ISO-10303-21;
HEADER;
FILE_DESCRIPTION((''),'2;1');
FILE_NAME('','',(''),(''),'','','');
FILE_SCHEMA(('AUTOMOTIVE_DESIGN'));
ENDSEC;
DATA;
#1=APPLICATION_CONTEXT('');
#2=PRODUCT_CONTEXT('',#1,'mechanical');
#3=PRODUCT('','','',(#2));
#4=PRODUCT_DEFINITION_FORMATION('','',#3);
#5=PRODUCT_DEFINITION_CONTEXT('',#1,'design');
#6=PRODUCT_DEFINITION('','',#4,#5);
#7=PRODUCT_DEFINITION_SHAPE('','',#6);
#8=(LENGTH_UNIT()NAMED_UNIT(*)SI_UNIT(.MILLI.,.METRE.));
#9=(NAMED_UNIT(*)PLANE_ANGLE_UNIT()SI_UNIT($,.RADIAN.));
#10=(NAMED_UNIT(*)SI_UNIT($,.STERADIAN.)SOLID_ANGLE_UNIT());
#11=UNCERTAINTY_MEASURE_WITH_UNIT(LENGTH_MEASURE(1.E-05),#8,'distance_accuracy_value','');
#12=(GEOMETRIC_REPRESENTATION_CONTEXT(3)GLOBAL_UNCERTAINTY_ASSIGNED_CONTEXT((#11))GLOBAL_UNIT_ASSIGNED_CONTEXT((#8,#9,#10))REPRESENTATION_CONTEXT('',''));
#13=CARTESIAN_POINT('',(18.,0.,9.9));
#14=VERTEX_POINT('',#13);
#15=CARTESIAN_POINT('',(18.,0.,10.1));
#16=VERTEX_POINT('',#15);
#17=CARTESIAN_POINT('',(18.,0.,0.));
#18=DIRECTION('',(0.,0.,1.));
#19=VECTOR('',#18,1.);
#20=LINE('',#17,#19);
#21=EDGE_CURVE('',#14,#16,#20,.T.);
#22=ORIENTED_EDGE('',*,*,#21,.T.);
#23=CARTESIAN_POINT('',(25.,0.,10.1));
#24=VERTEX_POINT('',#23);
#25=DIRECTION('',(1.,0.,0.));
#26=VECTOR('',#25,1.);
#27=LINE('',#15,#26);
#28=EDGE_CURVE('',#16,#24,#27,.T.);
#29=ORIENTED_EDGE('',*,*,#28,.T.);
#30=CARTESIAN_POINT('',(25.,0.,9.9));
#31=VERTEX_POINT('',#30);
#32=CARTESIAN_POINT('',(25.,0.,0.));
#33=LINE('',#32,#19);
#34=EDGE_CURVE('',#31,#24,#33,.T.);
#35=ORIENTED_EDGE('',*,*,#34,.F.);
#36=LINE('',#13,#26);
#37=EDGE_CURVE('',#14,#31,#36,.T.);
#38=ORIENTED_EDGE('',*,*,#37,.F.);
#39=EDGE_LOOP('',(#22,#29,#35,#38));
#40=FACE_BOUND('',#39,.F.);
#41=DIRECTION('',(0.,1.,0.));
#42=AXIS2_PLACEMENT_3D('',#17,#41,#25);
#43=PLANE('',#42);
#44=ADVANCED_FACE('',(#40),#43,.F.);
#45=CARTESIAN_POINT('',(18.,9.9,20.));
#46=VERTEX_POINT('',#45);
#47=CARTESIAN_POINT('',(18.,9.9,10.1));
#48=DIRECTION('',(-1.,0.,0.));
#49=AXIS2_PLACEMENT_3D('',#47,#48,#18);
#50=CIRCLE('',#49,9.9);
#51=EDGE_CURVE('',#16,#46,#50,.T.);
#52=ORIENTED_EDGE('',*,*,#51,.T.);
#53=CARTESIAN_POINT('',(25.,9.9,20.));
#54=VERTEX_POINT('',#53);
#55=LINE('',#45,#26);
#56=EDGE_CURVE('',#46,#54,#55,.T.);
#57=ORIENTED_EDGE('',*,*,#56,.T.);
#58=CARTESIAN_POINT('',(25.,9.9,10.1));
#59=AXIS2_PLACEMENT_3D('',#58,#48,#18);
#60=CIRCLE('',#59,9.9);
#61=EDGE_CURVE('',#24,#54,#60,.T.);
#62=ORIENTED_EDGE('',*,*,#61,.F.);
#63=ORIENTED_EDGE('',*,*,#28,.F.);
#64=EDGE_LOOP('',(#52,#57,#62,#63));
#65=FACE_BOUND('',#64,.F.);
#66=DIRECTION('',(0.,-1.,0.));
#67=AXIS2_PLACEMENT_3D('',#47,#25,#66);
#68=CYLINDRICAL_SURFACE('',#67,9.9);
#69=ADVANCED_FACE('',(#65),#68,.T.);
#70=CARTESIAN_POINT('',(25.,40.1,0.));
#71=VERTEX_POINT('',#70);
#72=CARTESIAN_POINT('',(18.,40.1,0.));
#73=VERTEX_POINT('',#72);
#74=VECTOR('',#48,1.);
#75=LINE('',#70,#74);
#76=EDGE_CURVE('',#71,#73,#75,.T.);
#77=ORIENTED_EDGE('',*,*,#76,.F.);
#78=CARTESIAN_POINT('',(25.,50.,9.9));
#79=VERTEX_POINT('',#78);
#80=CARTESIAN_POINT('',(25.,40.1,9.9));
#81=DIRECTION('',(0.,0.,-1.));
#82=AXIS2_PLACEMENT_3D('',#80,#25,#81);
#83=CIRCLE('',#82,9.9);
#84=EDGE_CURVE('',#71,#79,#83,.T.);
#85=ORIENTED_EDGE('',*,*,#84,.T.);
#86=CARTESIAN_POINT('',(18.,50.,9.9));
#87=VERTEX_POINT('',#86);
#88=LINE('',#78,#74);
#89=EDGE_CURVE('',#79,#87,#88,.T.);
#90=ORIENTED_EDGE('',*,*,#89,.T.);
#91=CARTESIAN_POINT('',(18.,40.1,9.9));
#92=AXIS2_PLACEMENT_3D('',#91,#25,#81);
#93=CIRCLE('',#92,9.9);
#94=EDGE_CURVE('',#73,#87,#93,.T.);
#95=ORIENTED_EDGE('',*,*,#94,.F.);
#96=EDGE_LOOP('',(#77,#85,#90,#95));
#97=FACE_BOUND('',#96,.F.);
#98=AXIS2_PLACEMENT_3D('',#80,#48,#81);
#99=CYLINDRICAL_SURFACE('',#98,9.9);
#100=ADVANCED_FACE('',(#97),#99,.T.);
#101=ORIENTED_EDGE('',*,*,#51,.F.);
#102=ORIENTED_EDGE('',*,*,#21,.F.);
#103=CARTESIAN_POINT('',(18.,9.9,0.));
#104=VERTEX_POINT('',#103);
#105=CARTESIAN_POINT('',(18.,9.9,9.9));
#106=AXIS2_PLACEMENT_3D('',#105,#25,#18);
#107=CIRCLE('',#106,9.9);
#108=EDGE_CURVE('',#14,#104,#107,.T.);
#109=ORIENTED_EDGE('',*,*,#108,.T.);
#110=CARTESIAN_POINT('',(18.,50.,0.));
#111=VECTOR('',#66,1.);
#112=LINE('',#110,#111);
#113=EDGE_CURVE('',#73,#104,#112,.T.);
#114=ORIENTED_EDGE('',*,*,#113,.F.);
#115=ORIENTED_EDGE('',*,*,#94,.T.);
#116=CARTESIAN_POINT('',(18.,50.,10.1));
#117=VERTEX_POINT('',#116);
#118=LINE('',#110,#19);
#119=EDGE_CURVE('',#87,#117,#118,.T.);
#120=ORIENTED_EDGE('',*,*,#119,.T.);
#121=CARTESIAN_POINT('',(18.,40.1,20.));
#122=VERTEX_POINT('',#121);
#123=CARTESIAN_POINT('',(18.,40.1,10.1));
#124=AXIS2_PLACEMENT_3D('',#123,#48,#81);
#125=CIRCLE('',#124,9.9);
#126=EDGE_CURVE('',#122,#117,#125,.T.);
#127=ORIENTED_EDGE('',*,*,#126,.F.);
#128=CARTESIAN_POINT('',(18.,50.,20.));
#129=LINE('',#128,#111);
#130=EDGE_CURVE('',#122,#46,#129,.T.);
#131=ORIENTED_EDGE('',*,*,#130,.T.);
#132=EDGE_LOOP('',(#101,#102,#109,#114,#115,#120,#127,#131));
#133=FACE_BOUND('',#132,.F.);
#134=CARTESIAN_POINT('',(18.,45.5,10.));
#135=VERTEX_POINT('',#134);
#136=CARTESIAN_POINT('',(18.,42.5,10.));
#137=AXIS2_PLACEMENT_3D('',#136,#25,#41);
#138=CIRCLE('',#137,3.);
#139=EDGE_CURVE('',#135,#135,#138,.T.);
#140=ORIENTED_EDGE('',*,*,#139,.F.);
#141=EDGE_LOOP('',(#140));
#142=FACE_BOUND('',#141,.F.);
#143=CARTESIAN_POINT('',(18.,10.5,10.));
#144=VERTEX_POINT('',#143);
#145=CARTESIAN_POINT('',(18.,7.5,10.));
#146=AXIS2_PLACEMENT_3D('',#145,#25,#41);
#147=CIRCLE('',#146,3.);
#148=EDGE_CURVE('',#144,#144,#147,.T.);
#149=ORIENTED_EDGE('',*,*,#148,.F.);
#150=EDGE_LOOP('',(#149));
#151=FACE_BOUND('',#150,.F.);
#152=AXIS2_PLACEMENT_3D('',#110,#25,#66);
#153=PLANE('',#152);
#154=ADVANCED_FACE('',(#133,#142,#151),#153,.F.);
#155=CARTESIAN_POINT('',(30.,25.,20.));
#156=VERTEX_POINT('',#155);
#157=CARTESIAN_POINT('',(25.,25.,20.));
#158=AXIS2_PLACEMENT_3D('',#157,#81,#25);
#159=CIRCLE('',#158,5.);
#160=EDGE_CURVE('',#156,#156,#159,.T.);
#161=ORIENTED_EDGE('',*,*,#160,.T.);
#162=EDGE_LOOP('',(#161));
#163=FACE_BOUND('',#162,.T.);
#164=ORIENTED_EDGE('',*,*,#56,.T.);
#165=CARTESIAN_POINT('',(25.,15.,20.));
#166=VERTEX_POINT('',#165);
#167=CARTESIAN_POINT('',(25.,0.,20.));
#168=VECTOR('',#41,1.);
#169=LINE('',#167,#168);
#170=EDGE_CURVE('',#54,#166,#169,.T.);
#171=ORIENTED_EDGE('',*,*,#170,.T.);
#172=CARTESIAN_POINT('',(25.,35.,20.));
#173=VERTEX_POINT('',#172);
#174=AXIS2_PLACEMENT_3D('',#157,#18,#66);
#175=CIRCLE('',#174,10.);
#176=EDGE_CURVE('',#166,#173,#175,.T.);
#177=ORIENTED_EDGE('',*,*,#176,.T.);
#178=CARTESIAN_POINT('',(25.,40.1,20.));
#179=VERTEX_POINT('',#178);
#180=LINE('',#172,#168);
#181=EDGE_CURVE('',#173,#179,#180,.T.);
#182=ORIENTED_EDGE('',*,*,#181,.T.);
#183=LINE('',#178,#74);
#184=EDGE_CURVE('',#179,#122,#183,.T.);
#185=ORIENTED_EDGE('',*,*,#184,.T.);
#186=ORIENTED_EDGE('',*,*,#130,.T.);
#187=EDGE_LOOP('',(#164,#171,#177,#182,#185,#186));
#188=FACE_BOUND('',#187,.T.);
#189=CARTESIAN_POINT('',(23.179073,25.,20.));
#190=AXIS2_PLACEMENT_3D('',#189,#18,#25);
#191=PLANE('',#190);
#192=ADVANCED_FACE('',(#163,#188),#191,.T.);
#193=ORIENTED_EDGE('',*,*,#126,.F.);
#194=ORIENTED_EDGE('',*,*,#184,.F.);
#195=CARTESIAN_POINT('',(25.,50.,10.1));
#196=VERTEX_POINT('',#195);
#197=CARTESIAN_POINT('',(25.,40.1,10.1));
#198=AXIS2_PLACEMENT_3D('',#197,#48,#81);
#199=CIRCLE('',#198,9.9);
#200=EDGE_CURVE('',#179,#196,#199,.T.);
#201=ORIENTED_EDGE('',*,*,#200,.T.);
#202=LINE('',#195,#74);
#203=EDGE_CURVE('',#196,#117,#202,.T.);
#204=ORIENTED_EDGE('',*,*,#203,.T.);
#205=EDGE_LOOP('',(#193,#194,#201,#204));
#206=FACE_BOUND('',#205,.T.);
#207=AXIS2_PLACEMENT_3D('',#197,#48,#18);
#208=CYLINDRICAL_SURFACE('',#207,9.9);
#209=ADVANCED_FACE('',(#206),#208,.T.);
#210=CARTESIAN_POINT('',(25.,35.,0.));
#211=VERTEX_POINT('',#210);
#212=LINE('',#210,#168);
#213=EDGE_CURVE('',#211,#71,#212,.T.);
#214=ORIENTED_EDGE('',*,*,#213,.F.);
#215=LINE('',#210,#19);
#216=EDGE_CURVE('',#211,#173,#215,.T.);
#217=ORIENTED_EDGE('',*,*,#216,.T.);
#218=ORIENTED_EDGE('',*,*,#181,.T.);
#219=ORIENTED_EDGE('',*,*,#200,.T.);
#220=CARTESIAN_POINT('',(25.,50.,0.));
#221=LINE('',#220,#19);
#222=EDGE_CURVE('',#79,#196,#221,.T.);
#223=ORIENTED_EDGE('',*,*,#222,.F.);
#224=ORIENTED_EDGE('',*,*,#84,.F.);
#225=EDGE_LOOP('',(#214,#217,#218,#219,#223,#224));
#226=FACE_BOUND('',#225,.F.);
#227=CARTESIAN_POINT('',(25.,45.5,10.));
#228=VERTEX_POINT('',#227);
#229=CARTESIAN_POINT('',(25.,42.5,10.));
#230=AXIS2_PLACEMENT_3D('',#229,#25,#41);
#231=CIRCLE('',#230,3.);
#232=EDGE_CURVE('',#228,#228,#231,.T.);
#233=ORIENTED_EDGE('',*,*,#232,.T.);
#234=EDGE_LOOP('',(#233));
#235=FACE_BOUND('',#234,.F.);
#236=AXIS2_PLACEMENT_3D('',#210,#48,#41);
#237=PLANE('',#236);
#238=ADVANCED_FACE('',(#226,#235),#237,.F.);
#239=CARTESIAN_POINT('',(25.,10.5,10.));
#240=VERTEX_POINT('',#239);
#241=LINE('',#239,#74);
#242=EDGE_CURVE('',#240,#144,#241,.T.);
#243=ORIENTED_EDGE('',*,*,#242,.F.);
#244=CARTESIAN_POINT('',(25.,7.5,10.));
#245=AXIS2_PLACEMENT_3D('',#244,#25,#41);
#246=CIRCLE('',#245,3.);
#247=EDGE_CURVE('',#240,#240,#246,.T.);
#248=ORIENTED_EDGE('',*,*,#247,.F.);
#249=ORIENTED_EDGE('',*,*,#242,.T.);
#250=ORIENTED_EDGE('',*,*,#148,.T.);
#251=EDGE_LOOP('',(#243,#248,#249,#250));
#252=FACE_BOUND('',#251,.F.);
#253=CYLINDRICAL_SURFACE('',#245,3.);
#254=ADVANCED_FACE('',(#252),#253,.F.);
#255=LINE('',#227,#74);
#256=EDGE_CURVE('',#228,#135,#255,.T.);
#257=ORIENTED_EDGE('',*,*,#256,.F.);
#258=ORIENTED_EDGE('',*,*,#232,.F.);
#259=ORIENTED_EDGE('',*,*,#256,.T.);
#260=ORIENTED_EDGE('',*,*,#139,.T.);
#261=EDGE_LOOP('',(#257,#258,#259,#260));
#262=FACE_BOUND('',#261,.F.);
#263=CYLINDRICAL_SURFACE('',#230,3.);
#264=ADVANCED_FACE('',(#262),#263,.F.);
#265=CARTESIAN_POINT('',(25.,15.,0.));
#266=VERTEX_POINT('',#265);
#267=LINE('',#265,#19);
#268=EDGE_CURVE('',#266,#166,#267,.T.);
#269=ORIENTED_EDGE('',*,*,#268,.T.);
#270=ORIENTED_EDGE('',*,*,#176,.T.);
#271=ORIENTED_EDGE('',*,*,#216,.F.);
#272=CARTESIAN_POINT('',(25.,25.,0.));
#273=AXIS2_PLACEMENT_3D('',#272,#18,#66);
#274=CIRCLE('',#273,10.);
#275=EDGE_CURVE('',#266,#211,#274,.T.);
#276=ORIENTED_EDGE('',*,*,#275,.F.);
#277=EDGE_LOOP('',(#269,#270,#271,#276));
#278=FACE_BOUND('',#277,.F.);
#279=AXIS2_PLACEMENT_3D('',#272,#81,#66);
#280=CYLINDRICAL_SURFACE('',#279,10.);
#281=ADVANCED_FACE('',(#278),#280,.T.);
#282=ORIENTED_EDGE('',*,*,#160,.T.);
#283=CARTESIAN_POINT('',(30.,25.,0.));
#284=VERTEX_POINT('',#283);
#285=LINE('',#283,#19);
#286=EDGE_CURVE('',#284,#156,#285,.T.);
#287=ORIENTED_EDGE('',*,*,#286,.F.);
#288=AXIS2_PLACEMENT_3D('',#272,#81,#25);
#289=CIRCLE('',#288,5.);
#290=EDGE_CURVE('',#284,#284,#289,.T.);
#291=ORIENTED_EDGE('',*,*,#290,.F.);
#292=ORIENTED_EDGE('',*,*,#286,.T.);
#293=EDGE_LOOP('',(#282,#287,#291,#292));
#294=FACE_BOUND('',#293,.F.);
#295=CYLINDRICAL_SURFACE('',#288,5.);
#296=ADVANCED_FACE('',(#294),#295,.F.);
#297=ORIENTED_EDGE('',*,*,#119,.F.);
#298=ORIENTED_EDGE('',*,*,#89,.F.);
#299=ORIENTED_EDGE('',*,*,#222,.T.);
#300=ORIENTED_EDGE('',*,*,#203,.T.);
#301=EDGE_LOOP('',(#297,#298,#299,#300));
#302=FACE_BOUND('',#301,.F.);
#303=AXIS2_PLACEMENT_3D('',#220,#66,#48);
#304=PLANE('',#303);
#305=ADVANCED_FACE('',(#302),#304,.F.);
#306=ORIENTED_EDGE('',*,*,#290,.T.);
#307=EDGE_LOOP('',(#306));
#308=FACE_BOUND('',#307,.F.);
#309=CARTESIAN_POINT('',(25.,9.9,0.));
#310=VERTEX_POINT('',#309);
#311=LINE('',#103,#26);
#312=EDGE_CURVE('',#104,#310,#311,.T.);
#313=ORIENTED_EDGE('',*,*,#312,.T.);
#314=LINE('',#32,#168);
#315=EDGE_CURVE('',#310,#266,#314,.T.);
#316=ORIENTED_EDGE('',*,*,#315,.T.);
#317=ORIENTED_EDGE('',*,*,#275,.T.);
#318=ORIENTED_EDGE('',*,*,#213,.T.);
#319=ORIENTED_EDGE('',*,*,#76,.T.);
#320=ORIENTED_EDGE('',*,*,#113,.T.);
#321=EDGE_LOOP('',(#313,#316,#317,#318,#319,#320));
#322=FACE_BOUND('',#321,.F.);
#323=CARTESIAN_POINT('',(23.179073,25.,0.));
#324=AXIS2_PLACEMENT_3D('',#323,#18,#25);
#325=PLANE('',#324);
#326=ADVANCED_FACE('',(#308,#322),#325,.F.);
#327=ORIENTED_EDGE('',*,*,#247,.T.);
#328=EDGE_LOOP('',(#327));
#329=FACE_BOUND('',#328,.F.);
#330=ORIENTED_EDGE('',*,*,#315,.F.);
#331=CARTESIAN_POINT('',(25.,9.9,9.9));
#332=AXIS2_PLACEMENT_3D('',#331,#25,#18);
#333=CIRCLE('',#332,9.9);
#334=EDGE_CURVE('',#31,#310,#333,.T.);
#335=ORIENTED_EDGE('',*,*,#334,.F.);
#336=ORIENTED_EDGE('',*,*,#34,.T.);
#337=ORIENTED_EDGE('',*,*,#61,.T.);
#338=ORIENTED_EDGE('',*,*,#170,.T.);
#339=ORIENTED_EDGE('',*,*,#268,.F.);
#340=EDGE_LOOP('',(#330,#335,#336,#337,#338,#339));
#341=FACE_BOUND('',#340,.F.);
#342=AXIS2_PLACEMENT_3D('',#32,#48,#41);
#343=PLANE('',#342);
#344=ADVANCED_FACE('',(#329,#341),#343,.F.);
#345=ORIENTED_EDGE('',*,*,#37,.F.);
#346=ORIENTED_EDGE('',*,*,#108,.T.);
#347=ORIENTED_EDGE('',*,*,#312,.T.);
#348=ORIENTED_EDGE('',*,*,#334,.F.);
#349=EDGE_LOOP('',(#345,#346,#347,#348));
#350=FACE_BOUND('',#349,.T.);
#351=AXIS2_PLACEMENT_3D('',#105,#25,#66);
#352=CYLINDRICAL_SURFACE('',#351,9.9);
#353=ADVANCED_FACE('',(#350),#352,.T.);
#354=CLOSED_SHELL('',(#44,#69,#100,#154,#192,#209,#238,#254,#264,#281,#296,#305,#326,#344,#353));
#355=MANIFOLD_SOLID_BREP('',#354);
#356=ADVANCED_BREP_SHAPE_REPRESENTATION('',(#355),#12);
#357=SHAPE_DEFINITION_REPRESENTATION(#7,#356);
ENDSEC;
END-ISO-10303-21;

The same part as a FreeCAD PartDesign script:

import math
import FreeCAD as App
import Part
import Sketcher

V = App.Vector


def edges_at(feature, points):
    """Names of the edges that pass closest to the given points."""
    edges = feature.Shape.Edges
    near = lambda p: min(range(len(edges)), key=lambda i: edges[i].distToShape(Part.Vertex(*p))[0])
    return sorted({f"Edge{near(p) + 1}" for p in points})

doc = App.newDocument("Part")
body = doc.addObject("PartDesign::Body", "Body")

# Sketch on XY plane
sketch1 = body.newObject("Sketcher::SketchObject", "Sketch")
sketch1.AttachmentSupport = (doc.getObject("XY_Plane"), [""])
sketch1.MapMode = "FlatFace"
sketch1.addGeometry(Part.LineSegment(V(18, 0, 0), V(25, 0, 0)), False)
sketch1.addGeometry(Part.LineSegment(V(25, 0, 0), V(25, 15, 0)), False)
sketch1.addGeometry(Part.ArcOfCircle(Part.Circle(V(25, 25, 0), V(0, 0, 1), 10), math.radians(-90), math.radians(90)), False)
sketch1.addGeometry(Part.LineSegment(V(25, 35, 0), V(25, 50, 0)), False)
sketch1.addGeometry(Part.LineSegment(V(25, 50, 0), V(18, 50, 0)), False)
sketch1.addGeometry(Part.LineSegment(V(18, 50, 0), V(18, 0, 0)), False)
sketch1.addConstraint(Sketcher.Constraint("Coincident", 0, 2, 1, 1))
sketch1.addConstraint(Sketcher.Constraint("Coincident", 1, 2, 2, 1))
sketch1.addConstraint(Sketcher.Constraint("Coincident", 2, 2, 3, 1))
sketch1.addConstraint(Sketcher.Constraint("Coincident", 3, 2, 4, 1))
sketch1.addConstraint(Sketcher.Constraint("Coincident", 4, 2, 5, 1))
sketch1.addConstraint(Sketcher.Constraint("Coincident", 5, 2, 0, 1))
sketch1.addConstraint(Sketcher.Constraint("Horizontal", 0))
sketch1.addConstraint(Sketcher.Constraint("Vertical", 1))
sketch1.addConstraint(Sketcher.Constraint("Vertical", 3))
sketch1.addConstraint(Sketcher.Constraint("Horizontal", 4))
sketch1.addConstraint(Sketcher.Constraint("Vertical", 5))
sketch1.addConstraint(Sketcher.Constraint("PointOnObject", 0, 2, -1))
sketch1.addConstraint(Sketcher.Constraint("Vertical", 2, 3, 0, 2))
sketch1.addConstraint(Sketcher.Constraint("Vertical", 1, 2, 2, 2))
sketch1.addConstraint(Sketcher.Constraint("Equal", 1, 3))
sketch1.addConstraint(Sketcher.Constraint("Radius", 2, 10.0))
sketch1.addConstraint(Sketcher.Constraint("DistanceX", 0, 1, 0, 2, 7.0))
sketch1.addConstraint(Sketcher.Constraint("DistanceY", 1, 1, 1, 2, 15.0))
sketch1.addConstraint(Sketcher.Constraint("DistanceX", -1, 1, 2, 3, 25.0))
pad1 = body.newObject("PartDesign::Pad", "Pad")
pad1.Profile = sketch1
pad1.Length = 20

# Sketch on XY plane
sketch2 = body.newObject("Sketcher::SketchObject", "Sketch001")
sketch2.AttachmentSupport = (doc.getObject("XY_Plane"), [""])
sketch2.MapMode = "FlatFace"
sketch2.addGeometry(Part.Circle(V(25, 25, 0), V(0, 0, 1), 5), False)
sketch2.addConstraint(Sketcher.Constraint("Diameter", 0, 10.0))
sketch2.addConstraint(Sketcher.Constraint("DistanceX", -1, 1, 0, 3, 25.0))
sketch2.addConstraint(Sketcher.Constraint("DistanceY", -1, 1, 0, 3, 25.0))
pocket1 = body.newObject("PartDesign::Pocket", "Pocket")
pocket1.Profile = sketch2
pocket1.Type = "ThroughAll"
pocket1.Reversed = True
doc.recompute()

fillet = body.newObject("PartDesign::Fillet", "Fillet")
fillet.Base = (pocket1, edges_at(pocket1, [
    (21.5, 0, 0),
    (21.5, 50, 0),
    (21.5, 50, 20),
    (21.5, 0, 20),
]))
fillet.Radius = 9.9

# Sketch on YZ plane
sketch3 = body.newObject("Sketcher::SketchObject", "Sketch002")
sketch3.AttachmentSupport = (doc.getObject("YZ_Plane"), [""])
sketch3.MapMode = "FlatFace"
sketch3.AttachmentOffset = App.Placement(V(0, 0, 25), App.Rotation())
sketch3.addGeometry(Part.Circle(V(7.5, 10, 0), V(0, 0, 1), 3), False)
sketch3.addGeometry(Part.Circle(V(42.5, 10, 0), V(0, 0, 1), 3), False)
sketch3.addConstraint(Sketcher.Constraint("Equal", 0, 1))
sketch3.addConstraint(Sketcher.Constraint("Horizontal", 0, 3, 1, 3))
sketch3.addConstraint(Sketcher.Constraint("Diameter", 0, 6.0))
sketch3.addConstraint(Sketcher.Constraint("DistanceY", -1, 1, 0, 3, 10.0))
sketch3.addConstraint(Sketcher.Constraint("DistanceX", 0, 3, 1, 3, 35.0))
sketch3.addConstraint(Sketcher.Constraint("DistanceX", -1, 1, 0, 3, 7.5))
pocket2 = body.newObject("PartDesign::Pocket", "Pocket001")
pocket2.Profile = sketch3
pocket2.Type = "ThroughAll"

doc.recompute()
